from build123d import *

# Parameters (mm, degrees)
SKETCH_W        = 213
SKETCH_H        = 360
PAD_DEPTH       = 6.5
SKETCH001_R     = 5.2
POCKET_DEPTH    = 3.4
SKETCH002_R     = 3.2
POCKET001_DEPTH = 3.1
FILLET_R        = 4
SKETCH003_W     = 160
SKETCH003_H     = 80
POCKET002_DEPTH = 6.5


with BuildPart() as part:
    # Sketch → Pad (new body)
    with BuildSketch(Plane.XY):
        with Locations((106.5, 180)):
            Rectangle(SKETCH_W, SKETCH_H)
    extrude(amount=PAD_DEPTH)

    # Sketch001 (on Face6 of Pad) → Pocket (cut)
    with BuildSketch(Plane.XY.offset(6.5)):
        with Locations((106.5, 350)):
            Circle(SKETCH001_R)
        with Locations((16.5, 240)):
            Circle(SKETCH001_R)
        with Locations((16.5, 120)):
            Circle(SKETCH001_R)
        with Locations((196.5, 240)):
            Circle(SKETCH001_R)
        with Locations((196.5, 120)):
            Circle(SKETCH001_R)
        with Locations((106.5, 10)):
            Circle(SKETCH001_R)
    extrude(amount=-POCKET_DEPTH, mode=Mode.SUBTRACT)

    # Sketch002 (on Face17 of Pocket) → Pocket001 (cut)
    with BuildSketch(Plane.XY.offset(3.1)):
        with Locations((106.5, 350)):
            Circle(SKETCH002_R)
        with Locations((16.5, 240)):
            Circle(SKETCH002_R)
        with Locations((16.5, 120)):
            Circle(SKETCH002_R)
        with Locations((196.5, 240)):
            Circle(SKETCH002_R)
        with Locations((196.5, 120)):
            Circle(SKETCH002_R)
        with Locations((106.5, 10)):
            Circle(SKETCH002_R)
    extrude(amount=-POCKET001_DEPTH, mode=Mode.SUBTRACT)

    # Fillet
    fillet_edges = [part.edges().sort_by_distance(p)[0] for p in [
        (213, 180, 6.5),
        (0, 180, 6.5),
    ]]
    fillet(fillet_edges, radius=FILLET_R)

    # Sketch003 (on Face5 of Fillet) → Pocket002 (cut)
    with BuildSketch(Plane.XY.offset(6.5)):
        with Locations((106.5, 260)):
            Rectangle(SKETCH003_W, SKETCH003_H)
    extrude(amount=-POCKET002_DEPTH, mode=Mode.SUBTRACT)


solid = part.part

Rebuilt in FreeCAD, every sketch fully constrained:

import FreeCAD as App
import Part
import Sketcher


def edges_at(feature, points):
    """Names of the edges that pass closest to the given points."""
    edges = feature.Shape.Edges
    near = lambda p: min(range(len(edges)), key=lambda i: edges[i].distToShape(Part.Vertex(*p))[0])
    return sorted({f"Edge{near(p) + 1}" for p in points})

doc = App.newDocument("Part")
body = doc.addObject("PartDesign::Body", "Body")

sketch1 = body.newObject("Sketcher::SketchObject", "Sketch")
sketch1.AttachmentSupport = (doc.getObject("XY_Plane"), [""])
sketch1.MapMode = "FlatFace"
sketch1.addGeometry([
    Part.LineSegment(App.Vector(0, 360, 0), App.Vector(0, 0, 0)),
    Part.LineSegment(App.Vector(0, 0, 0), App.Vector(213, 0, 0)),
    Part.LineSegment(App.Vector(213, 0, 0), App.Vector(213, 360, 0)),
    Part.LineSegment(App.Vector(213, 360, 0), App.Vector(0, 360, 0)),
], False)
sketch1.addConstraint([
    Sketcher.Constraint("Coincident", 0, 2, 1, 1),
    Sketcher.Constraint("Coincident", 1, 2, 2, 1),
    Sketcher.Constraint("Coincident", 2, 2, 3, 1),
    Sketcher.Constraint("Coincident", 3, 2, 0, 1),
    Sketcher.Constraint("Vertical", 0),
    Sketcher.Constraint("Horizontal", 1),
    Sketcher.Constraint("Vertical", 2),
    Sketcher.Constraint("Horizontal", 3),
    Sketcher.Constraint("Coincident", 0, 2, -1, 1),
    Sketcher.Constraint("DistanceX", 1, 1, 1, 2, 213.0),
    Sketcher.Constraint("DistanceY", 0, 2, 0, 1, 360.0),
])
pad1 = body.newObject("PartDesign::Pad", "Pad")
pad1.Profile = sketch1
pad1.Length = 6.5

sketch2 = body.newObject("Sketcher::SketchObject", "Sketch001")
sketch2.AttachmentSupport = (doc.getObject("XY_Plane"), [""])
sketch2.MapMode = "FlatFace"
sketch2.AttachmentOffset = App.Placement(App.Vector(0, 0, 6.5), App.Rotation())
sketch2.addGeometry([
    Part.Circle(App.Vector(106, 350, 0), App.Vector(0, 0, 1), 5),
    Part.Circle(App.Vector(16, 240, 0), App.Vector(0, 0, 1), 5),
    Part.Circle(App.Vector(16, 120, 0), App.Vector(0, 0, 1), 5),
    Part.Circle(App.Vector(196, 240, 0), App.Vector(0, 0, 1), 5),
    Part.Circle(App.Vector(196, 120, 0), App.Vector(0, 0, 1), 5),
    Part.Circle(App.Vector(106, 10, 0), App.Vector(0, 0, 1), 5),
], False)
sketch2.addConstraint([
    Sketcher.Constraint("Equal", 0, 1),
    Sketcher.Constraint("Equal", 1, 2),
    Sketcher.Constraint("Equal", 2, 3),
    Sketcher.Constraint("Equal", 3, 4),
    Sketcher.Constraint("Equal", 4, 5),
    Sketcher.Constraint("Horizontal", 1, 3, 3, 3),
    Sketcher.Constraint("Horizontal", 2, 3, 4, 3),
    Sketcher.Constraint("Vertical", 1, 3, 2, 3),
    Sketcher.Constraint("Vertical", 3, 3, 4, 3),
    Sketcher.Constraint("Vertical", 0, 3, 5, 3),
    Sketcher.Constraint("Diameter", 0, 10.4),
    Sketcher.Constraint("DistanceY", -1, 1, 0, 3, 350.0),
    Sketcher.Constraint("DistanceY", -1, 1, 1, 3, 240.0),
    Sketcher.Constraint("DistanceY", -1, 1, 2, 3, 120.0),
    Sketcher.Constraint("DistanceY", -1, 1, 5, 3, 10.0),
    Sketcher.Constraint("DistanceX", 1, 3, 0, 3, 90.0),
    Sketcher.Constraint("DistanceX", 0, 3, 3, 3, 90.0),
    Sketcher.Constraint("DistanceX", -1, 1, 0, 3, 106.5),
])
pocket1 = body.newObject("PartDesign::Pocket", "Pocket")
pocket1.Profile = sketch2
pocket1.Length = 3.4

sketch3 = body.newObject("Sketcher::SketchObject", "Sketch002")
sketch3.AttachmentSupport = (doc.getObject("XY_Plane"), [""])
sketch3.MapMode = "FlatFace"
sketch3.AttachmentOffset = App.Placement(App.Vector(0, 0, 3.1), App.Rotation())
sketch3.addGeometry([
    Part.Circle(App.Vector(106.5, 350, 0), App.Vector(0, 0, 1), 3.2),
    Part.Circle(App.Vector(16.5, 240, 0), App.Vector(0, 0, 1), 3.2),
    Part.Circle(App.Vector(16.5, 120, 0), App.Vector(0, 0, 1), 3.2),
    Part.Circle(App.Vector(196.5, 240, 0), App.Vector(0, 0, 1), 3.2),
    Part.Circle(App.Vector(196.5, 120, 0), App.Vector(0, 0, 1), 3.2),
    Part.Circle(App.Vector(106.5, 10, 0), App.Vector(0, 0, 1), 3.2),
], False)
sketch3.addConstraint([
    Sketcher.Constraint("Equal", 0, 1),
    Sketcher.Constraint("Equal", 1, 2),
    Sketcher.Constraint("Equal", 2, 3),
    Sketcher.Constraint("Equal", 3, 4),
    Sketcher.Constraint("Equal", 4, 5),
    Sketcher.Constraint("Horizontal", 1, 3, 3, 3),
    Sketcher.Constraint("Horizontal", 2, 3, 4, 3),
    Sketcher.Constraint("Vertical", 1, 3, 2, 3),
    Sketcher.Constraint("Vertical", 3, 3, 4, 3),
    Sketcher.Constraint("Vertical", 0, 3, 5, 3),
    Sketcher.Constraint("Diameter", 0, 6.4),
    Sketcher.Constraint("DistanceY", -1, 1, 0, 3, 350.0),
    Sketcher.Constraint("DistanceY", -1, 1, 1, 3, 240.0),
    Sketcher.Constraint("DistanceY", -1, 1, 2, 3, 120.0),
    Sketcher.Constraint("DistanceY", -1, 1, 5, 3, 10.0),
    Sketcher.Constraint("DistanceX", 1, 3, 0, 3, 90.0),
    Sketcher.Constraint("DistanceX", 0, 3, 3, 3, 90.0),
    Sketcher.Constraint("DistanceX", -1, 1, 0, 3, 106.5),
])
pocket2 = body.newObject("PartDesign::Pocket", "Pocket001")
pocket2.Profile = sketch3
pocket2.Length = 3.1
doc.recompute()

fillet = body.newObject("PartDesign::Fillet", "Fillet")
fillet.Base = (pocket2, edges_at(pocket2, [(213, 180, 6.5), (0, 180, 6.5)]))
fillet.Radius = 4

sketch4 = body.newObject("Sketcher::SketchObject", "Sketch003")
sketch4.AttachmentSupport = (doc.getObject("XY_Plane"), [""])
sketch4.MapMode = "FlatFace"
sketch4.AttachmentOffset = App.Placement(App.Vector(0, 0, 6.5), App.Rotation())
sketch4.addGeometry([
    Part.LineSegment(App.Vector(26, 300, 0), App.Vector(26, 220, 0)),
    Part.LineSegment(App.Vector(26, 220, 0), App.Vector(186, 220, 0)),
    Part.LineSegment(App.Vector(186, 220, 0), App.Vector(186, 300, 0)),
    Part.LineSegment(App.Vector(186, 300, 0), App.Vector(26, 300, 0)),
], False)
sketch4.addConstraint([
    Sketcher.Constraint("Coincident", 0, 2, 1, 1),
    Sketcher.Constraint("Coincident", 1, 2, 2, 1),
    Sketcher.Constraint("Coincident", 2, 2, 3, 1),
    Sketcher.Constraint("Coincident", 3, 2, 0, 1),
    Sketcher.Constraint("Vertical", 0),
    Sketcher.Constraint("Horizontal", 1),
    Sketcher.Constraint("Vertical", 2),
    Sketcher.Constraint("Horizontal", 3),
    Sketcher.Constraint("DistanceX", 1, 1, 1, 2, 160.0),
    Sketcher.Constraint("DistanceY", 0, 2, 0, 1, 80.0),
    Sketcher.Constraint("DistanceY", -1, 1, 0, 2, 220.0),
    Sketcher.Constraint("DistanceX", -1, 1, 0, 2, 26.5),
])
pocket3 = body.newObject("PartDesign::Pocket", "Pocket002")
pocket3.Profile = sketch4
pocket3.Length = 6.5

doc.recompute()
